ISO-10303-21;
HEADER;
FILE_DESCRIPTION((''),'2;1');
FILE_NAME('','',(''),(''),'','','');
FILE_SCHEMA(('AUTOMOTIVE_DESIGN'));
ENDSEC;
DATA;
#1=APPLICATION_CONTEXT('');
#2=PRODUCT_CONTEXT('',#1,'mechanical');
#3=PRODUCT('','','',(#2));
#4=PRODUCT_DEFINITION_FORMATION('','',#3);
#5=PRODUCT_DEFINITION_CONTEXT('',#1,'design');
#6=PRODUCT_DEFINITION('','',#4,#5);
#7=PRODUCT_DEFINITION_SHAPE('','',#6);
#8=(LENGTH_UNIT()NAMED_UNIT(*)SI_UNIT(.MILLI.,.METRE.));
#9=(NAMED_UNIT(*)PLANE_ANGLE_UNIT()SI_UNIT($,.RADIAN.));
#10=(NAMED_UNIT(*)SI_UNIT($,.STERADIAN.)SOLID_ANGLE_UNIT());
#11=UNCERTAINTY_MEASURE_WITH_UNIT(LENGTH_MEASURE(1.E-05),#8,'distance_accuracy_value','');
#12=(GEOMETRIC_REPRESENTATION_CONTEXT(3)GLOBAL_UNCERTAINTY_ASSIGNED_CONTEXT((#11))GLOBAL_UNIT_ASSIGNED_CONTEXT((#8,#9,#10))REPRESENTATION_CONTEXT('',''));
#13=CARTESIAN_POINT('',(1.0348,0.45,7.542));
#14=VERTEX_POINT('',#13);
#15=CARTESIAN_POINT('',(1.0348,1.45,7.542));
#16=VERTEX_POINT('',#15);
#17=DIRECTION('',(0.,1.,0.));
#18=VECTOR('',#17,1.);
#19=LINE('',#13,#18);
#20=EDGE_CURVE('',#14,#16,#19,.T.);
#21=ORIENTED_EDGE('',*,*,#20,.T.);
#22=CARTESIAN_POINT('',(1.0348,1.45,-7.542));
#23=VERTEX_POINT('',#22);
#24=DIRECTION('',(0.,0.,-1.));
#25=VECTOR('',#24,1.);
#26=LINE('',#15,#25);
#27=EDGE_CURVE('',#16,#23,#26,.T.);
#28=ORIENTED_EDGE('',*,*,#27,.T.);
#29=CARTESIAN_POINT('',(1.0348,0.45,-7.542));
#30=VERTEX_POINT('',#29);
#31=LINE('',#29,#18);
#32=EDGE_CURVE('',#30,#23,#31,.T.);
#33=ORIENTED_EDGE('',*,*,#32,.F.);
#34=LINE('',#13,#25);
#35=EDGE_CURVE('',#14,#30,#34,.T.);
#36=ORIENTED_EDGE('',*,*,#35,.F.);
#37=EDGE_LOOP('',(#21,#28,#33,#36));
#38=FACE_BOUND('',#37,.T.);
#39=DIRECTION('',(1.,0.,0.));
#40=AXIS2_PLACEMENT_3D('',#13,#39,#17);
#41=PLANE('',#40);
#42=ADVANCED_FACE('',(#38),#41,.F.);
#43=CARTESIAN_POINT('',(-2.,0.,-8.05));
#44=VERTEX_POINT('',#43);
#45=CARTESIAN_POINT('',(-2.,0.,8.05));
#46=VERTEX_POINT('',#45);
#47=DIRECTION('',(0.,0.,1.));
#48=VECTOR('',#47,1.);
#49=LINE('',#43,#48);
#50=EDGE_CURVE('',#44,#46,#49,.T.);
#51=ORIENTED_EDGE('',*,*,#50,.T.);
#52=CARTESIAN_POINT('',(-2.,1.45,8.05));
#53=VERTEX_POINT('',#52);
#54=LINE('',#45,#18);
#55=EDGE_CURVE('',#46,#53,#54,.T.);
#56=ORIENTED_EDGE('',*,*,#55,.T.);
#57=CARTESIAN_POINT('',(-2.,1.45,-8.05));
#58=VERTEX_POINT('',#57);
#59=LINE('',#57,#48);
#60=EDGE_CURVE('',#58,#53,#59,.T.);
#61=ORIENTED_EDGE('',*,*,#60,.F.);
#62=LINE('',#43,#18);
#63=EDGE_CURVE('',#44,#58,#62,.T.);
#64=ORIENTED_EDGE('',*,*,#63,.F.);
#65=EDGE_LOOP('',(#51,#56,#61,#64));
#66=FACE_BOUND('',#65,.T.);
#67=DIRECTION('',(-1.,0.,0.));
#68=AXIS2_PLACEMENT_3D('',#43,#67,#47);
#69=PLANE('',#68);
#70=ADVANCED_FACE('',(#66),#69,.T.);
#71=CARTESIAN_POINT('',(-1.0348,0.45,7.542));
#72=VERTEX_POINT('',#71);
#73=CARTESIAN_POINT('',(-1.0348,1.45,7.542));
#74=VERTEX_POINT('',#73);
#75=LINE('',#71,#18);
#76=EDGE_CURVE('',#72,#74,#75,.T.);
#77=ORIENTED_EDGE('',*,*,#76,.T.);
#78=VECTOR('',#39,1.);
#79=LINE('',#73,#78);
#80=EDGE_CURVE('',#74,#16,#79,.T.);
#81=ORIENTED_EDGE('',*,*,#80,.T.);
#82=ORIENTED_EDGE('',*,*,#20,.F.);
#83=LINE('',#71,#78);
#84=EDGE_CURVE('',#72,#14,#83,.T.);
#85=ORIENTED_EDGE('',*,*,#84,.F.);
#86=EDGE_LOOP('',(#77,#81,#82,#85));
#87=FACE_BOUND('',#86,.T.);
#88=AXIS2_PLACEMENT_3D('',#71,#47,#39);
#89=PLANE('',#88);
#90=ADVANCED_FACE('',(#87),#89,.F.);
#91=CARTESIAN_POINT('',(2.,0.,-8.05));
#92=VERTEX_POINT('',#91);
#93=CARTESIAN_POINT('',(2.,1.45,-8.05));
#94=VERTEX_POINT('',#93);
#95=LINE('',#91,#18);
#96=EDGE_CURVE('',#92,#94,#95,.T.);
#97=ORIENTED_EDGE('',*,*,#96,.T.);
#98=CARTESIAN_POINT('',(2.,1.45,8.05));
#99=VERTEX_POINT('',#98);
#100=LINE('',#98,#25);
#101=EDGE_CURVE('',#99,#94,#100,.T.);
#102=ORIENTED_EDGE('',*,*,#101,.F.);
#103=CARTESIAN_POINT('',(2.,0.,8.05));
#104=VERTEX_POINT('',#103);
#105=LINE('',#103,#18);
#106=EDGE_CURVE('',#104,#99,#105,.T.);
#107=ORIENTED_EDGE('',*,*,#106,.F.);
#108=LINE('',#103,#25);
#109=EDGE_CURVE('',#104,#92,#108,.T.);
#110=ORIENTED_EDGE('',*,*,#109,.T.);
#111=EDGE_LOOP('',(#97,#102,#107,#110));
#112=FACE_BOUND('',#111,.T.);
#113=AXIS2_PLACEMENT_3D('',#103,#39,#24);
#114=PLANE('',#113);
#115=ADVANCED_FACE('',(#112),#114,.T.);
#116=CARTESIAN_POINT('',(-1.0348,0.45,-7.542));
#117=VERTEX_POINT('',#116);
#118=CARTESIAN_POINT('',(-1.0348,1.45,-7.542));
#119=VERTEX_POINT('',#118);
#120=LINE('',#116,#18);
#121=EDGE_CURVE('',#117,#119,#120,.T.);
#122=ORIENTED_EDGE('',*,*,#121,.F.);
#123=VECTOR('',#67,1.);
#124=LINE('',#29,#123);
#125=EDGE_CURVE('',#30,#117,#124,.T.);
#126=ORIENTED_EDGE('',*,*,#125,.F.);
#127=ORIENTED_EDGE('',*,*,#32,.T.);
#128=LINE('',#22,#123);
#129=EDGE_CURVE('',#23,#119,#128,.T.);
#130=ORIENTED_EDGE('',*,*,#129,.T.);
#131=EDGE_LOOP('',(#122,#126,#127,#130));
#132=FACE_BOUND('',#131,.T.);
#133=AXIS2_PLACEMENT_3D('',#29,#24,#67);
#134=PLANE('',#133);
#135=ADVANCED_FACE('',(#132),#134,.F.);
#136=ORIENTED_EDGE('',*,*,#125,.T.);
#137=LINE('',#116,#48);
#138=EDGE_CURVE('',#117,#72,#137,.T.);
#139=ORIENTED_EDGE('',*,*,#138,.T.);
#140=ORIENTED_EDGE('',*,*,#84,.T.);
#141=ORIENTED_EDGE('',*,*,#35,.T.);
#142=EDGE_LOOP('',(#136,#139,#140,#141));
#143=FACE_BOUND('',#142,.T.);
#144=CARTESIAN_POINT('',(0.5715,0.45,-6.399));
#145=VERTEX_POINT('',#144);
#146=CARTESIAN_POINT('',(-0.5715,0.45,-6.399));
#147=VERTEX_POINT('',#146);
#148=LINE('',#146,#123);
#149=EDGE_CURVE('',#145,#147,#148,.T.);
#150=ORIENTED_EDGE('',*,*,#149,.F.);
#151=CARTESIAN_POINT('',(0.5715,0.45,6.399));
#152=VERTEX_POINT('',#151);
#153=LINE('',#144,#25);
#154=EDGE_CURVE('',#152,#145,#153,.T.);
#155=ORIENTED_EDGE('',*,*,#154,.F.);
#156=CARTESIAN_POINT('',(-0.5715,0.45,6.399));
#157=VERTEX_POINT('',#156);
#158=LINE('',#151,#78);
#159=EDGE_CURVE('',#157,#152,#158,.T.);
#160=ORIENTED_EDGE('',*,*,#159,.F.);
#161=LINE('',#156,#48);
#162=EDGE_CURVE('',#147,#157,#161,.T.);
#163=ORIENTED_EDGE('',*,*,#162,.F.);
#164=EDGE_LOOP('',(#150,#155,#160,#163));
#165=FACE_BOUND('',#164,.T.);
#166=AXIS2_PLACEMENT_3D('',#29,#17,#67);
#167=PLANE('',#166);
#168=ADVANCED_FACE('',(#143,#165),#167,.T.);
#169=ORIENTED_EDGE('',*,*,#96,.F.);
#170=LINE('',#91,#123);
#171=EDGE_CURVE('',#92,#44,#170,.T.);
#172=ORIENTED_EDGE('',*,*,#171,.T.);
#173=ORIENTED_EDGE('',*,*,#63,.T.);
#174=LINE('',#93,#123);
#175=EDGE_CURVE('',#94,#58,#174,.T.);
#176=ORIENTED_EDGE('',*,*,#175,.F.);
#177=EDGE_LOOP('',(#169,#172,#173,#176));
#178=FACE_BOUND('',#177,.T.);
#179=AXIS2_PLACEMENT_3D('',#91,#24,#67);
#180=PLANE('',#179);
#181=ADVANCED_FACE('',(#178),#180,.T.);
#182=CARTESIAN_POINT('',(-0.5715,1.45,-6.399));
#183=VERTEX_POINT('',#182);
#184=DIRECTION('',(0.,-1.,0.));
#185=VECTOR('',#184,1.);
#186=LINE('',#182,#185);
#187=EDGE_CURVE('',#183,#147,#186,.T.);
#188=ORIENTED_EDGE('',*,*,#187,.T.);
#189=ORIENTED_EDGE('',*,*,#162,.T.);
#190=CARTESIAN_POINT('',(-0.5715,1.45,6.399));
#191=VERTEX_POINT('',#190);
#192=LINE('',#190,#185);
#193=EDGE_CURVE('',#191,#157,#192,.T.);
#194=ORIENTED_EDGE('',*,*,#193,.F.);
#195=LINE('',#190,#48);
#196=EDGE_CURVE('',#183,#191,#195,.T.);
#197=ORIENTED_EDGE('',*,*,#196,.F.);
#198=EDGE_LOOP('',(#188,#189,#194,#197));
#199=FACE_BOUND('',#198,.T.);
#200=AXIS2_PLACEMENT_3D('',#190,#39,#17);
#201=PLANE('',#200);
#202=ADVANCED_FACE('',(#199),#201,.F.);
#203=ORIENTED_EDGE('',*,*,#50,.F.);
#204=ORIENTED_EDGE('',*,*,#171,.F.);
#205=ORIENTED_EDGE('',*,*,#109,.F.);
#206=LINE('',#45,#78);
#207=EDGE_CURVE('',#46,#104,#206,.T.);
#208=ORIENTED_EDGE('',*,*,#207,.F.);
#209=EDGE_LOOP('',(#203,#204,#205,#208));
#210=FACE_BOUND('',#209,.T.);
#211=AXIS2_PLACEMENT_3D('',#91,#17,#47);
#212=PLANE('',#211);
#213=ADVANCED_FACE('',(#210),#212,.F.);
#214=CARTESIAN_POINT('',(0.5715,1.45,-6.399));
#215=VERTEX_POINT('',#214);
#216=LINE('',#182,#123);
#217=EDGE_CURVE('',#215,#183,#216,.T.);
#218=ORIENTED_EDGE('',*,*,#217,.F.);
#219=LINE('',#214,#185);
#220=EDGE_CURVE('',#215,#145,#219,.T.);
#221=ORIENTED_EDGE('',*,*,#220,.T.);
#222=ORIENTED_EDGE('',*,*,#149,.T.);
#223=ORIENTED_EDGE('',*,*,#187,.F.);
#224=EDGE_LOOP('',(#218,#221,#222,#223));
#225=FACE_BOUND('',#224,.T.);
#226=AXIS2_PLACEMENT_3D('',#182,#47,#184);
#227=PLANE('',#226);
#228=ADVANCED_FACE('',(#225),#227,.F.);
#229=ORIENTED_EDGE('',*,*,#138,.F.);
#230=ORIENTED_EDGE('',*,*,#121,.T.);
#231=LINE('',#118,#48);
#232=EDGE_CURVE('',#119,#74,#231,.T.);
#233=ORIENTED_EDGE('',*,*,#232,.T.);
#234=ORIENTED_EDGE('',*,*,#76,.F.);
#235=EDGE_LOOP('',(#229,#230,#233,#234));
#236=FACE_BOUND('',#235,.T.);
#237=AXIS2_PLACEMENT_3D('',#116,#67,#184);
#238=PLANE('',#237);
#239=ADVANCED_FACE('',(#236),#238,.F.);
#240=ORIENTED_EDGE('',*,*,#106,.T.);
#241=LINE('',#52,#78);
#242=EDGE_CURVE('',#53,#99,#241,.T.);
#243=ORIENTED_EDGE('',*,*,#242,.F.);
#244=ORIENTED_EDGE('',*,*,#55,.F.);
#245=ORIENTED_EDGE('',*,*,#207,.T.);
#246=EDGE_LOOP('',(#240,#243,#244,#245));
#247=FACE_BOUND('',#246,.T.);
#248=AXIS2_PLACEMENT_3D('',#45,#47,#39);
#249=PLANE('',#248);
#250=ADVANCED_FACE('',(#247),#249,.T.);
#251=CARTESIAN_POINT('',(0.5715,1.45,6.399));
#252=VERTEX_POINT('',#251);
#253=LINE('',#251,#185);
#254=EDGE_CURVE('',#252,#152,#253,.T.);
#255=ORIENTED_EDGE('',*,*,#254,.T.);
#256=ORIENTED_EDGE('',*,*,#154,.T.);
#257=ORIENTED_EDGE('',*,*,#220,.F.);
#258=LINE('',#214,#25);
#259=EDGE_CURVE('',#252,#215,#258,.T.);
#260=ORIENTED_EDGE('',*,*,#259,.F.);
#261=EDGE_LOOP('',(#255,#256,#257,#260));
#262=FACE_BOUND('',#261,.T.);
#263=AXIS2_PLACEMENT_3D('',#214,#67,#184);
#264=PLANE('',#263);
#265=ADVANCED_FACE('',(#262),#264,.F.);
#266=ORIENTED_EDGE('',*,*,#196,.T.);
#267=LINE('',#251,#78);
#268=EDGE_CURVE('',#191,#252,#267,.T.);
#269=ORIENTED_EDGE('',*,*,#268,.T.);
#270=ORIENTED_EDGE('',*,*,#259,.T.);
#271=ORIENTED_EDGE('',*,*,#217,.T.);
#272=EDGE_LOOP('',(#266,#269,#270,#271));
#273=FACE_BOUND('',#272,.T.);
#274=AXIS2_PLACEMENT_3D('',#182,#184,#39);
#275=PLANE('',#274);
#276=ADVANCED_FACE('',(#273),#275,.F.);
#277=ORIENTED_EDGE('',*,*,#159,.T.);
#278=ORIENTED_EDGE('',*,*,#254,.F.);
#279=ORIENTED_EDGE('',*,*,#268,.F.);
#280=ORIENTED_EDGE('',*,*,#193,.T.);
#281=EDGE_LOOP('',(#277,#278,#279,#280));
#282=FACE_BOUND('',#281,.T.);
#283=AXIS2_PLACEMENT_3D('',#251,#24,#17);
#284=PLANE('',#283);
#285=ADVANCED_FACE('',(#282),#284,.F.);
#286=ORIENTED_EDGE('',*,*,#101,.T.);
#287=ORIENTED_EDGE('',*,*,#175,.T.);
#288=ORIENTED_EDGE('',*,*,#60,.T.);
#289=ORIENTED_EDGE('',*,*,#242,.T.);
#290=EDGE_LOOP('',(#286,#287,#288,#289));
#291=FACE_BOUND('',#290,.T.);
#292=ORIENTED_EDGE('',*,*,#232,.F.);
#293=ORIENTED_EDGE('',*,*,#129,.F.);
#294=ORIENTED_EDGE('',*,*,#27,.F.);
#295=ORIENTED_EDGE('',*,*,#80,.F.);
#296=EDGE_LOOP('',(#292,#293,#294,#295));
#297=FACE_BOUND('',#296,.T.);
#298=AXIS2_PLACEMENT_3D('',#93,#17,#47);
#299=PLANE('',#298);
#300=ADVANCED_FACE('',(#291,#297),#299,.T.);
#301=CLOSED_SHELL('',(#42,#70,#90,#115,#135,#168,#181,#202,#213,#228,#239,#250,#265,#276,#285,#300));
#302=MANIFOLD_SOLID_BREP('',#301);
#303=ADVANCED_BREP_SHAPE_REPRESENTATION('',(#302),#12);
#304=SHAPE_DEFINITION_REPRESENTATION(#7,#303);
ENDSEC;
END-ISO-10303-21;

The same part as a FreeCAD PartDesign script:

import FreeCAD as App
import Part
import Sketcher

V = App.Vector
Q = App.Units.Quantity

doc = App.newDocument("Part")
body = doc.addObject("PartDesign::Body", "Body")

sketch1 = body.newObject("Sketcher::SketchObject", "Sketch")
sketch1.AttachmentSupport = (doc.getObject("XZ_Plane"), [""])
sketch1.MapMode = "FlatFace"
sketch1.AttachmentOffset = App.Placement(V(0, 0, -1.45), App.Rotation())
sketch1.addGeometry([
    Part.LineSegment(V(2, 8.05, 0), V(2, -8.05, 0)),
    Part.LineSegment(V(2, -8.05, 0), V(-2, -8.05, 0)),
    Part.LineSegment(V(-2, -8.05, 0), V(-2, 8.05, 0)),
    Part.LineSegment(V(-2, 8.05, 0), V(2, 8.05, 0)),
], False)
sketch1.addConstraint([
    Sketcher.Constraint("Coincident", 0, 2, 1, 1),
    Sketcher.Constraint("Coincident", 1, 2, 2, 1),
    Sketcher.Constraint("Coincident", 2, 2, 3, 1),
    Sketcher.Constraint("Coincident", 3, 2, 0, 1),
    Sketcher.Constraint("Vertical", 0),
    Sketcher.Constraint("Horizontal", 1),
    Sketcher.Constraint("Vertical", 2),
    Sketcher.Constraint("Horizontal", 3),
    Sketcher.Constraint("Symmetric", 0, 2, 2, 2, -1, 1),
    Sketcher.Constraint("DistanceX", 1, 2, 1, 1, Q("4 mm")),
    Sketcher.Constraint("DistanceY", 0, 2, 0, 1, Q("16.1 mm")),
])
pad1 = body.newObject("PartDesign::Pad", "Pad")
pad1.Profile = sketch1
pad1.Length = 1.45

sketch2 = body.newObject("Sketcher::SketchObject", "Sketch001")
sketch2.AttachmentSupport = (doc.getObject("XZ_Plane"), [""])
sketch2.MapMode = "FlatFace"
sketch2.AttachmentOffset = App.Placement(V(0, 0, -1.45), App.Rotation())
sketch2.addGeometry([
    Part.LineSegment(V(1.0348, 7.542, 0), V(1.0348, -7.542, 0)),
    Part.LineSegment(V(1.0348, -7.542, 0), V(-1.0348, -7.542, 0)),
    Part.LineSegment(V(-1.0348, -7.542, 0), V(-1.0348, 7.542, 0)),
    Part.LineSegment(V(-1.0348, 7.542, 0), V(1.0348, 7.542, 0)),
], False)
sketch2.addConstraint([
    Sketcher.Constraint("Coincident", 0, 2, 1, 1),
    Sketcher.Constraint("Coincident", 1, 2, 2, 1),
    Sketcher.Constraint("Coincident", 2, 2, 3, 1),
    Sketcher.Constraint("Coincident", 3, 2, 0, 1),
    Sketcher.Constraint("Vertical", 0),
    Sketcher.Constraint("Horizontal", 1),
    Sketcher.Constraint("Vertical", 2),
    Sketcher.Constraint("Horizontal", 3),
    Sketcher.Constraint("Symmetric", 0, 2, 2, 2, -1, 1),
    Sketcher.Constraint("DistanceY", 0, 2, 0, 1, Q("15.084 mm")),
    Sketcher.Constraint("DistanceX", 1, 2, 1, 1, Q("2.0696 mm")),
])
pocket1 = body.newObject("PartDesign::Pocket", "Pocket")
pocket1.Profile = sketch2
pocket1.Length = 1
pocket1.Reversed = True

sketch3 = body.newObject("Sketcher::SketchObject", "Sketch002")
sketch3.AttachmentSupport = (doc.getObject("XZ_Plane"), [""])
sketch3.MapMode = "FlatFace"
sketch3.AttachmentOffset = App.Placement(V(0, 0, -0.45), App.Rotation())
sketch3.addGeometry([
    Part.LineSegment(V(0.5715, 6.399, 0), V(0.5715, -6.399, 0)),
    Part.LineSegment(V(0.5715, -6.399, 0), V(-0.5715, -6.399, 0)),
    Part.LineSegment(V(-0.5715, -6.399, 0), V(-0.5715, 6.399, 0)),
    Part.LineSegment(V(-0.5715, 6.399, 0), V(0.5715, 6.399, 0)),
], False)
sketch3.addConstraint([
    Sketcher.Constraint("Coincident", 0, 2, 1, 1),
    Sketcher.Constraint("Coincident", 1, 2, 2, 1),
    Sketcher.Constraint("Coincident", 2, 2, 3, 1),
    Sketcher.Constraint("Coincident", 3, 2, 0, 1),
    Sketcher.Constraint("Vertical", 0),
    Sketcher.Constraint("Horizontal", 1),
    Sketcher.Constraint("Vertical", 2),
    Sketcher.Constraint("Horizontal", 3),
    Sketcher.Constraint("Symmetric", 0, 2, 2, 2, -1, 1),
    Sketcher.Constraint("DistanceX", 1, 2, 1, 1, Q("1.143 mm")),
    Sketcher.Constraint("DistanceY", 0, 2, 0, 1, Q("12.798 mm")),
])
pad2 = body.newObject("PartDesign::Pad", "Pad001")
pad2.Profile = sketch3
pad2.Length = 1
pad2.Reversed = True

doc.recompute()
